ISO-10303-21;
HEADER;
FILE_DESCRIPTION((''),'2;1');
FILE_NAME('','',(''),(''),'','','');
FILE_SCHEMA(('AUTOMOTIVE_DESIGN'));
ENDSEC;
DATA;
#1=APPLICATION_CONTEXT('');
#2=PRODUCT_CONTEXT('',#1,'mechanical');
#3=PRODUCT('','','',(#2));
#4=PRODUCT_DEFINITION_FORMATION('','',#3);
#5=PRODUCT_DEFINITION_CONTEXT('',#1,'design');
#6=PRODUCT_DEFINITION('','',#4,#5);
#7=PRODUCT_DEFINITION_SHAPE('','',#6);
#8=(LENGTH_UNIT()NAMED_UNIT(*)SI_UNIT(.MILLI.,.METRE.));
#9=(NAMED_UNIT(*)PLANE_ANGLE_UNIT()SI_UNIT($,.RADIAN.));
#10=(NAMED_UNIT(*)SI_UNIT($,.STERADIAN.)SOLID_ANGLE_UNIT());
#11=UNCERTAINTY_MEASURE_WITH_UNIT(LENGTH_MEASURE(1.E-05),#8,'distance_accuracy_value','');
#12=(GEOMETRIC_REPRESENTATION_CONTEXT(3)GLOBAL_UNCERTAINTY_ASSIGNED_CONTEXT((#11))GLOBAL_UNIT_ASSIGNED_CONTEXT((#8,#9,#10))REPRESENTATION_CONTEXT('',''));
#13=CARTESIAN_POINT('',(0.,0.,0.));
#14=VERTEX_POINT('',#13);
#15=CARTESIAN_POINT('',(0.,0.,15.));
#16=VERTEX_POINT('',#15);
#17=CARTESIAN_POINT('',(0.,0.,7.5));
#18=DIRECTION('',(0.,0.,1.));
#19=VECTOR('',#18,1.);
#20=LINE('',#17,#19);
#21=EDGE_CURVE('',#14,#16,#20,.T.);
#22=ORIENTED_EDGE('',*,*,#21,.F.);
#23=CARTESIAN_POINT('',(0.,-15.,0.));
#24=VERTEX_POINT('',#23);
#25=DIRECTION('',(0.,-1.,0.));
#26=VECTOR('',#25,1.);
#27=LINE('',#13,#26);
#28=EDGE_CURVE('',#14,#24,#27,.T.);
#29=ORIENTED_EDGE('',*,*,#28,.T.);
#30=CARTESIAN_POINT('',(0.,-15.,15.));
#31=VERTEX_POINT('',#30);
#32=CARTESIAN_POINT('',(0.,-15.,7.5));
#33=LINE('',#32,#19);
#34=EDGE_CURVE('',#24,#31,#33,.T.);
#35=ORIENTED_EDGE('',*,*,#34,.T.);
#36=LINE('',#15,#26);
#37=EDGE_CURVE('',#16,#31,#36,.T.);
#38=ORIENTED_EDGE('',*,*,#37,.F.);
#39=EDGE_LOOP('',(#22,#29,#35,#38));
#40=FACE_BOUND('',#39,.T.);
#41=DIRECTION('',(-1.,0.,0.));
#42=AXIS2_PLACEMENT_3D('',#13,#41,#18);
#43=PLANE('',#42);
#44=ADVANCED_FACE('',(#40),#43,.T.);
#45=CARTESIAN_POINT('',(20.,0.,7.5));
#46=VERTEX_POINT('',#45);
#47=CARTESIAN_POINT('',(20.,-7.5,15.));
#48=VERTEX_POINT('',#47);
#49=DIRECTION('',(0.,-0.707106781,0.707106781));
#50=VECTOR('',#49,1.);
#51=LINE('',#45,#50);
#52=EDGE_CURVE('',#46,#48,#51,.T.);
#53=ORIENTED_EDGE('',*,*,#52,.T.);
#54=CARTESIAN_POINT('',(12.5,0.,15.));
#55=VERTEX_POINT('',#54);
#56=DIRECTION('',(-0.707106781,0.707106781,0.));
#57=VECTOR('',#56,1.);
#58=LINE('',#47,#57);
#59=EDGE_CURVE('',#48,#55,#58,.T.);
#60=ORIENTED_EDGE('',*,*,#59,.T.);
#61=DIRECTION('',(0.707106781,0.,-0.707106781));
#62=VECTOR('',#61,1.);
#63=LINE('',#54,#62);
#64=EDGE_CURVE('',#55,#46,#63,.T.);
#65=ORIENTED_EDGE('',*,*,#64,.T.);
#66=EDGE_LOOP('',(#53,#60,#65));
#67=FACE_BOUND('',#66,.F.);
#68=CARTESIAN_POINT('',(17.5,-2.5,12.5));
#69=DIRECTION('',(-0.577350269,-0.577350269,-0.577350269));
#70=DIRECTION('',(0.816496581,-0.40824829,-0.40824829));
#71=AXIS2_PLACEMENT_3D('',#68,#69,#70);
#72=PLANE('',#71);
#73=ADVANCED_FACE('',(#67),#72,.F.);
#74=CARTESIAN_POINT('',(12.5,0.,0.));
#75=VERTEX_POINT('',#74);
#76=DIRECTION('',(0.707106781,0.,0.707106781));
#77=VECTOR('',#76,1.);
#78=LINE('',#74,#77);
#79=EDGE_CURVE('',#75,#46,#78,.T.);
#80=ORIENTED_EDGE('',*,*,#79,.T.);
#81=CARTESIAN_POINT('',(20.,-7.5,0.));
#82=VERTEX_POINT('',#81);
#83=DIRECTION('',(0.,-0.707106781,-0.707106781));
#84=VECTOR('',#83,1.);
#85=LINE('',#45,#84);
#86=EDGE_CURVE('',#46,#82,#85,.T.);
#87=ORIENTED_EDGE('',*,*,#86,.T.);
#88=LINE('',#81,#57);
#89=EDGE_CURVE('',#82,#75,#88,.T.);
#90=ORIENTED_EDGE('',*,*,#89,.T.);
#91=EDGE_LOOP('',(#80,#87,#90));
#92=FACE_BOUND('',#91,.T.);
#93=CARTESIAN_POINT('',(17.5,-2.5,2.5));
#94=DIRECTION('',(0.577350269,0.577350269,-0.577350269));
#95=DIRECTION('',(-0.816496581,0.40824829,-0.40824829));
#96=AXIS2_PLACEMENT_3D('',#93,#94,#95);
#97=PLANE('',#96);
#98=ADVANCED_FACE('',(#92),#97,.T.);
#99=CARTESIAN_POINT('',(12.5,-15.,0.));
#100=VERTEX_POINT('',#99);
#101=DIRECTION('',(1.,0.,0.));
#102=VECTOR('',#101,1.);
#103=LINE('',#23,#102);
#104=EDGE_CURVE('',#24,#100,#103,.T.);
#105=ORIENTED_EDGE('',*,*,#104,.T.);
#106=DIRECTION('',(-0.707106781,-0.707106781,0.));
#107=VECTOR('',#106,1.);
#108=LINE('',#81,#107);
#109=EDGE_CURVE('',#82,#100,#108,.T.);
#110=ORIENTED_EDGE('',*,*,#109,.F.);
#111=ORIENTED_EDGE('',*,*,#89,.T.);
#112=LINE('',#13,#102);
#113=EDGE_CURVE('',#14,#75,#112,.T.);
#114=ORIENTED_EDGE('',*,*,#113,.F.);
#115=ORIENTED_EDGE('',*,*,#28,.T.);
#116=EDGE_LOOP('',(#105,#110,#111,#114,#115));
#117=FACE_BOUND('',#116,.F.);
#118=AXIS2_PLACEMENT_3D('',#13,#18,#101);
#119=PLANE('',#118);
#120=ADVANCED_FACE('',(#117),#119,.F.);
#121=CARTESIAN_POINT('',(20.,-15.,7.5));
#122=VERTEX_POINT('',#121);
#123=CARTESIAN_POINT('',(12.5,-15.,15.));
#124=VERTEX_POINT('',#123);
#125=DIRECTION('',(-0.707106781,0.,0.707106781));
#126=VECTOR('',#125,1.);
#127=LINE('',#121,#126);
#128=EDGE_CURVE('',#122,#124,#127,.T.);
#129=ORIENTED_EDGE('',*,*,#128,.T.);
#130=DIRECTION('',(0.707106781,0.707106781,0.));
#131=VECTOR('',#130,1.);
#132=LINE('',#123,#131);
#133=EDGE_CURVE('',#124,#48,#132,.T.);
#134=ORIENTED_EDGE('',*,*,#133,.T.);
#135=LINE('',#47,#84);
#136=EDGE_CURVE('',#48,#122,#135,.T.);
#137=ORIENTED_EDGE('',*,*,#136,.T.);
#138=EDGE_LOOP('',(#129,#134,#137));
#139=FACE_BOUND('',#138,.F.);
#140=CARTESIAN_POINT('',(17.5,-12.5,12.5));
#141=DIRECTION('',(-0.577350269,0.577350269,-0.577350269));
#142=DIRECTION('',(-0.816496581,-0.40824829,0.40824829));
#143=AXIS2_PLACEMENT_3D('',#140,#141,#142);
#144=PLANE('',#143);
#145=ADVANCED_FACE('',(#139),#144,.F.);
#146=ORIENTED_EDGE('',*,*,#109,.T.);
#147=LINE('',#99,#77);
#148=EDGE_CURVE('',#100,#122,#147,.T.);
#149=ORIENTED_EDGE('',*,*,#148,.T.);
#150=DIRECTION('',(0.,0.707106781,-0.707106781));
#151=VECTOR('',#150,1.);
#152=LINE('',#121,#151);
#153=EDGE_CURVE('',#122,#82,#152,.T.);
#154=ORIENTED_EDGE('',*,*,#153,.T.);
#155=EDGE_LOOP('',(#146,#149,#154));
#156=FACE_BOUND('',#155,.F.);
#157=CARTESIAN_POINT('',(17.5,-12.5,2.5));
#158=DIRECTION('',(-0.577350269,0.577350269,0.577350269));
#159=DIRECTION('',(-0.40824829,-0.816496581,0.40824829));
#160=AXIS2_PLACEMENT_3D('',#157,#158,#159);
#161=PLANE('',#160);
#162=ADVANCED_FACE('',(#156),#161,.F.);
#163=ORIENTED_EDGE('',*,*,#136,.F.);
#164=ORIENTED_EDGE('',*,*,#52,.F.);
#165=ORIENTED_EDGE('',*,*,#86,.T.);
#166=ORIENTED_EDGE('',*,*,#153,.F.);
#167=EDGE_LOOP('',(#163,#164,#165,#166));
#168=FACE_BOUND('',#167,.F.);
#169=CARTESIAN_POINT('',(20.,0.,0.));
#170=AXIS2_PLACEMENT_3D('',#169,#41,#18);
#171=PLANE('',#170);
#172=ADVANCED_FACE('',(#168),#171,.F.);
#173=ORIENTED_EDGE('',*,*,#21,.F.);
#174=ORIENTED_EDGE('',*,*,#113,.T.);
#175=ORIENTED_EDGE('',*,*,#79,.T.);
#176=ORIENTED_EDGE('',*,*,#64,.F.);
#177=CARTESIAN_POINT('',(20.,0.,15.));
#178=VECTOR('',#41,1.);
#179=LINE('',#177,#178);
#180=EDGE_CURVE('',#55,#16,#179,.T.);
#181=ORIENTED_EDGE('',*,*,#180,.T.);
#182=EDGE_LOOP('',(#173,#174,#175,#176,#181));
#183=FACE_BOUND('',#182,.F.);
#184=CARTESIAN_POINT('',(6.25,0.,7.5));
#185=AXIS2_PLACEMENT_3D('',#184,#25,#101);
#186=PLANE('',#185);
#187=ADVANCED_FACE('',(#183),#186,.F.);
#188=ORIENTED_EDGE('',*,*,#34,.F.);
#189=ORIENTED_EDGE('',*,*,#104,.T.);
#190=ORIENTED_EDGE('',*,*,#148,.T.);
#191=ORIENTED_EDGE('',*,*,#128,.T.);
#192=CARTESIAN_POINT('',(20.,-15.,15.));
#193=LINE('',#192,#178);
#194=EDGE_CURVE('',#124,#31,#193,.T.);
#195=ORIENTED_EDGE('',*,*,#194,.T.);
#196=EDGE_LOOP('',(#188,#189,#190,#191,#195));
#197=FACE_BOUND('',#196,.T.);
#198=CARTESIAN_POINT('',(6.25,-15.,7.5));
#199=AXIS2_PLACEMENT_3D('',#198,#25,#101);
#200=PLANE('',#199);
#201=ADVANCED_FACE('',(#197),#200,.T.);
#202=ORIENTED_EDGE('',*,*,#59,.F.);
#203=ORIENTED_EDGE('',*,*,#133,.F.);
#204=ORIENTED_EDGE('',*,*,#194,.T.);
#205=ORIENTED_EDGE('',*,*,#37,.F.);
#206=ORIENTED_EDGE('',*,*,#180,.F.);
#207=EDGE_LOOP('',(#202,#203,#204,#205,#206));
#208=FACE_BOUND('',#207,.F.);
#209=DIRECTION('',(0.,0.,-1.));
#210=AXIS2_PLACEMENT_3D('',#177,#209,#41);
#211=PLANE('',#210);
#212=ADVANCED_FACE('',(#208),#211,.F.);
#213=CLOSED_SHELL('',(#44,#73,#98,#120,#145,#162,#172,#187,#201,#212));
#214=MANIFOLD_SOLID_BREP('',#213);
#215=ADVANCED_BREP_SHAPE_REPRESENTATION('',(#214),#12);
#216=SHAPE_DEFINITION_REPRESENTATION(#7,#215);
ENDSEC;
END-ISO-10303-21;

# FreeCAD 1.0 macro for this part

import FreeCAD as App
import Part
import Sketcher
from FreeCAD import Vector
Q = App.Units.Quantity

doc = App.newDocument("Part")
body = doc.addObject("PartDesign::Body", "Body")

sketch1 = body.newObject("Sketcher::SketchObject", "Sketch")
sketch1.AttachmentSupport = (doc.getObject("XZ_Plane"), [""])
sketch1.MapMode = "FlatFace"
sketch1.addGeometry(Part.LineSegment(Vector(0, 15, 0), Vector(0, 0, 0)), False)
sketch1.addGeometry(Part.LineSegment(Vector(0, 0, 0), Vector(20, 0, 0)), False)
sketch1.addGeometry(Part.LineSegment(Vector(20, 0, 0), Vector(20, 15, 0)), False)
sketch1.addGeometry(Part.LineSegment(Vector(20, 15, 0), Vector(0, 15, 0)), False)
sketch1.addConstraint(Sketcher.Constraint("Coincident", 0, 2, 1, 1))
sketch1.addConstraint(Sketcher.Constraint("Coincident", 1, 2, 2, 1))
sketch1.addConstraint(Sketcher.Constraint("Coincident", 2, 2, 3, 1))
sketch1.addConstraint(Sketcher.Constraint("Coincident", 3, 2, 0, 1))
sketch1.addConstraint(Sketcher.Constraint("Vertical", 0))
sketch1.addConstraint(Sketcher.Constraint("Horizontal", 1))
sketch1.addConstraint(Sketcher.Constraint("Vertical", 2))
sketch1.addConstraint(Sketcher.Constraint("Horizontal", 3))
sketch1.addConstraint(Sketcher.Constraint("Coincident", 0, 2, -1, 1))
sketch1.addConstraint(Sketcher.Constraint("DistanceX", 1, 1, 1, 2, 20.0))
sketch1.addConstraint(Sketcher.Constraint("DistanceY", 0, 2, 0, 1, 15.0))
pad1 = body.newObject("PartDesign::Pad", "Pad")
pad1.Profile = sketch1
pad1.Length = 15

sketch2 = body.newObject("Sketcher::SketchObject", "Sketch001")
sketch2.Placement = App.Placement(Vector(9.166667, 9.166667, 9.166667), App.Rotation(Vector(0.816496581, -0.40824829, -0.40824829), Vector(0, -0.707106781, 0.707106781), Vector(-0.577350269, -0.577350269, -0.577350269), "ZXY"))
sketch2.addGeometry(Part.LineSegment(Vector(4.082483, 10.606602, 0), Vector(13.268069, 5.303301, 0)), False)
sketch2.addGeometry(Part.LineSegment(Vector(13.268069, 5.303301, 0), Vector(13.268069, 15.909903, 0)), False)
sketch2.addGeometry(Part.LineSegment(Vector(13.268069, 15.909903, 0), Vector(4.082483, 10.606602, 0)), False)
sketch2.addConstraint(Sketcher.Constraint("Coincident", 0, 2, 1, 1))
sketch2.addConstraint(Sketcher.Constraint("Coincident", 1, 2, 2, 1))
sketch2.addConstraint(Sketcher.Constraint("Coincident", 2, 2, 0, 1))
sketch2.addConstraint(Sketcher.Constraint("Vertical", 1))
sketch2.addConstraint(Sketcher.Constraint("Equal", 0, 2))
sketch2.addConstraint(Sketcher.Constraint("Angle", 0, Q("-30 deg")))
sketch2.addConstraint(Sketcher.Constraint("DistanceY", 1, 1, 1, 2, 10.606602))
sketch2.addConstraint(Sketcher.Constraint("DistanceY", -1, 1, 0, 2, 5.303301))
sketch2.addConstraint(Sketcher.Constraint("DistanceX", -1, 1, 0, 2, 13.268069))
pocket1 = body.newObject("PartDesign::Pocket", "Pocket")
pocket1.Profile = sketch2
pocket1.Length = 25

sketch3 = body.newObject("Sketcher::SketchObject", "Sketch002")
sketch3.Placement = App.Placement(Vector(4.166667, 4.166667, -4.166667), App.Rotation(Vector(-0.816496581, 0.40824829, -0.40824829), Vector(0, 0.707106781, 0.707106781), Vector(0.577350269, 0.577350269, -0.577350269), "ZXY"))
sketch3.addGeometry(Part.LineSegment(Vector(-19.391794, 5.303301, 0), Vector(-19.391794, -5.303301, 0)), False)
sketch3.addGeometry(Part.LineSegment(Vector(-19.391794, -5.303301, 0), Vector(-10.206207, 0, 0)), False)
sketch3.addGeometry(Part.LineSegment(Vector(-10.206207, 0, 0), Vector(-19.391794, 5.303301, 0)), False)
sketch3.addConstraint(Sketcher.Constraint("Coincident", 0, 2, 1, 1))
sketch3.addConstraint(Sketcher.Constraint("Coincident", 1, 2, 2, 1))
sketch3.addConstraint(Sketcher.Constraint("Coincident", 2, 2, 0, 1))
sketch3.addConstraint(Sketcher.Constraint("Vertical", 0))
sketch3.addConstraint(Sketcher.Constraint("PointOnObject", 1, 2, -1))
sketch3.addConstraint(Sketcher.Constraint("Equal", 1, 2))
sketch3.addConstraint(Sketcher.Constraint("Angle", 1, Q("30 deg")))
sketch3.addConstraint(Sketcher.Constraint("DistanceY", 0, 2, 0, 1, 10.606602))
sketch3.addConstraint(Sketcher.Constraint("DistanceX", 0, 2, -1, 1, 19.391794))
pocket2 = body.newObject("PartDesign::Pocket", "Pocket001")
pocket2.Profile = sketch3
pocket2.Length = 43.5
pocket2.Reversed = True

sketch4 = body.newObject("Sketcher::SketchObject", "Sketch003")
sketch4.Placement = App.Placement(Vector(9.166667, -9.166667, -9.166667), App.Rotation(Vector(-0.40824829, -0.816496581, 0.40824829), Vector(0.707106781, 0, 0.707106781), Vector(-0.577350269, 0.577350269, 0.577350269), "ZXY"))
sketch4.addGeometry(Part.LineSegment(Vector(-2.041241, 14.142136, 0), Vector(7.144345, 8.838835, 0)), False)
sketch4.addGeometry(Part.LineSegment(Vector(7.144345, 8.838835, 0), Vector(7.144345, 19.445436, 0)), False)
sketch4.addGeometry(Part.LineSegment(Vector(7.144345, 19.445436, 0), Vector(-2.041241, 14.142136, 0)), False)
sketch4.addConstraint(Sketcher.Constraint("Coincident", 0, 2, 1, 1))
sketch4.addConstraint(Sketcher.Constraint("Coincident", 1, 2, 2, 1))
sketch4.addConstraint(Sketcher.Constraint("Coincident", 2, 2, 0, 1))
sketch4.addConstraint(Sketcher.Constraint("Vertical", 1))
sketch4.addConstraint(Sketcher.Constraint("Equal", 0, 2))
sketch4.addConstraint(Sketcher.Constraint("Angle", 0, Q("-30 deg")))
sketch4.addConstraint(Sketcher.Constraint("DistanceY", 1, 1, 1, 2, 10.606602))
sketch4.addConstraint(Sketcher.Constraint("DistanceX", 2, 2, -1, 1, 2.041241))
sketch4.addConstraint(Sketcher.Constraint("DistanceY", -1, 1, 0, 2, 8.838835))
pocket3 = body.newObject("PartDesign::Pocket", "Pocket002")
pocket3.Profile = sketch4
pocket3.Length = 25

sketch5 = body.newObject("Sketcher::SketchObject", "Sketch004")
sketch5.Placement = App.Placement(Vector(14.166667, -14.166667, 14.166667), App.Rotation(Vector(-0.816496581, -0.40824829, 0.40824829), Vector(0, 0.707106781, 0.707106781), Vector(-0.577350269, 0.577350269, -0.577350269), "ZXY"))
sketch5.addGeometry(Part.LineSegment(Vector(2.041241, 0, 0), Vector(-7.144345, 5.303301, 0)), False)
sketch5.addGeometry(Part.LineSegment(Vector(-7.144345, 5.303301, 0), Vector(-7.144345, -5.303301, 0)), False)
sketch5.addGeometry(Part.LineSegment(Vector(-7.144345, -5.303301, 0), Vector(2.041241, 0, 0)), False)
sketch5.addConstraint(Sketcher.Constraint("Coincident", 0, 2, 1, 1))
sketch5.addConstraint(Sketcher.Constraint("Coincident", 1, 2, 2, 1))
sketch5.addConstraint(Sketcher.Constraint("Coincident", 2, 2, 0, 1))
sketch5.addConstraint(Sketcher.Constraint("Vertical", 1))
sketch5.addConstraint(Sketcher.Constraint("PointOnObject", 2, 2, -1))
sketch5.addConstraint(Sketcher.Constraint("Equal", 0, 2))
sketch5.addConstraint(Sketcher.Constraint("Angle", 0, Q("150 deg")))
sketch5.addConstraint(Sketcher.Constraint("DistanceY", 1, 2, 1, 1, 10.606602))
sketch5.addConstraint(Sketcher.Constraint("DistanceX", -1, 1, 2, 2, 2.041241))
pocket4 = body.newObject("PartDesign::Pocket", "Pocket003")
pocket4.Profile = sketch5
pocket4.Length = 25

doc.recompute()
